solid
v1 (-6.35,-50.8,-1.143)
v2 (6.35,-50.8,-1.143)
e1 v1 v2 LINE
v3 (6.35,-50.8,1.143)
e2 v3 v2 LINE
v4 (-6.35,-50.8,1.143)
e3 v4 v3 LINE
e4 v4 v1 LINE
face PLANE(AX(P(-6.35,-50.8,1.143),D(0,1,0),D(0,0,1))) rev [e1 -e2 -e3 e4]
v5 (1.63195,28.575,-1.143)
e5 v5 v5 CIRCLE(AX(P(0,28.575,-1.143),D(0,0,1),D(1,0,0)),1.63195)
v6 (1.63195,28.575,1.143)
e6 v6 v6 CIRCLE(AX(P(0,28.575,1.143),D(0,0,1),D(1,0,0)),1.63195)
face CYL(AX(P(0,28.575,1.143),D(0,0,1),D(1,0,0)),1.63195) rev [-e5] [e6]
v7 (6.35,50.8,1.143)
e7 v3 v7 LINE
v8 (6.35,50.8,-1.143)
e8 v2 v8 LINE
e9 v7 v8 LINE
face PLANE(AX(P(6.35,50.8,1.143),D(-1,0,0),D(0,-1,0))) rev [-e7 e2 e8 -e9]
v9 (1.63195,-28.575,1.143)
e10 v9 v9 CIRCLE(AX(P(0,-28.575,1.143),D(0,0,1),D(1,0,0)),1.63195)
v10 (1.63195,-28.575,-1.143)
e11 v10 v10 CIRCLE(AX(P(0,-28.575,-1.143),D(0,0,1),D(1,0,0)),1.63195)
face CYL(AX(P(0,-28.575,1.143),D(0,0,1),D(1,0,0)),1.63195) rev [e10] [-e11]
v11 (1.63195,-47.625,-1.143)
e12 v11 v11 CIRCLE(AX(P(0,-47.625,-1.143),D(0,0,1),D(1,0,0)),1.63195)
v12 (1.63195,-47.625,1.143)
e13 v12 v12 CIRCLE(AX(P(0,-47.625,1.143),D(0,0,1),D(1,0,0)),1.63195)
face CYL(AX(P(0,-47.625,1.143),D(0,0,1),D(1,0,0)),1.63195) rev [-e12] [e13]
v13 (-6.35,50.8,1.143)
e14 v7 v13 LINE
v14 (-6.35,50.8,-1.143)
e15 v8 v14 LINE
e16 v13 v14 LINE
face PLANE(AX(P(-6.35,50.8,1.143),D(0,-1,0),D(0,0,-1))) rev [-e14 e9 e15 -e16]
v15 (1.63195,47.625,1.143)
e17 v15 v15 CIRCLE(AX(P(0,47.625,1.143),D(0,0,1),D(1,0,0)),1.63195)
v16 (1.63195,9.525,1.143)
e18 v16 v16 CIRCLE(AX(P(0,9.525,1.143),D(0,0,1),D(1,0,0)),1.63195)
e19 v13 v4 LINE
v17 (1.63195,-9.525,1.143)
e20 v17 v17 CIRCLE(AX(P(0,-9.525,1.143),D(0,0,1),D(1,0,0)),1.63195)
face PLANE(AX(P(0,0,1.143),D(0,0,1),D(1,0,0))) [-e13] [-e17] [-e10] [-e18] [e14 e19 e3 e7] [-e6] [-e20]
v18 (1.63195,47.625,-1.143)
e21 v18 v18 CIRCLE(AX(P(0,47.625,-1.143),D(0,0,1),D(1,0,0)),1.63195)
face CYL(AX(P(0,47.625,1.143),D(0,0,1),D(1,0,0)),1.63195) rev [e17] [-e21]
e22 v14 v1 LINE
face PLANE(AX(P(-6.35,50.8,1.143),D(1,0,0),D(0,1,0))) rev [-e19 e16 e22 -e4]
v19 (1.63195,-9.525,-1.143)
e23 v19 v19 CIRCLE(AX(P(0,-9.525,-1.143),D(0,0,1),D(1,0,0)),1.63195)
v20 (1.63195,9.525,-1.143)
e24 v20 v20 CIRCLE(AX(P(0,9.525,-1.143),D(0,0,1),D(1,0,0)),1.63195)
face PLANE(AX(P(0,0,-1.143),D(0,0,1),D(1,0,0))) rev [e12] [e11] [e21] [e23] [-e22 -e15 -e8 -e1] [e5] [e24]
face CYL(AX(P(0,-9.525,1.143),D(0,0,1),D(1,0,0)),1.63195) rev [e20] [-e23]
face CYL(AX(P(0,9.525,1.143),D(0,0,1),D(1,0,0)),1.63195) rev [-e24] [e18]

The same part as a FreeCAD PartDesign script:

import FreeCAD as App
import Part
import Sketcher
Q = App.Units.Quantity

doc = App.newDocument("Part")
body = doc.addObject("PartDesign::Body", "Body")

# Sketch on XY plane
sketch1 = body.newObject("Sketcher::SketchObject", "Sketch")
sketch1.AttachmentSupport = (doc.getObject("XY_Plane"), [""])
sketch1.MapMode = "FlatFace"
sketch1.addGeometry(Part.LineSegment(App.Vector(-6, 51, 0), App.Vector(-6, -51, 0)), False)
sketch1.addGeometry(Part.LineSegment(App.Vector(-6, -51, 0), App.Vector(6, -51, 0)), False)
sketch1.addGeometry(Part.LineSegment(App.Vector(6, -51, 0), App.Vector(6, 51, 0)), False)
sketch1.addGeometry(Part.LineSegment(App.Vector(6, 51, 0), App.Vector(-6, 51, 0)), False)
sketch1.addConstraint(Sketcher.Constraint("Coincident", 0, 2, 1, 1))
sketch1.addConstraint(Sketcher.Constraint("Coincident", 1, 2, 2, 1))
sketch1.addConstraint(Sketcher.Constraint("Coincident", 2, 2, 3, 1))
sketch1.addConstraint(Sketcher.Constraint("Coincident", 3, 2, 0, 1))
sketch1.addConstraint(Sketcher.Constraint("Vertical", 0))
sketch1.addConstraint(Sketcher.Constraint("Horizontal", 1))
sketch1.addConstraint(Sketcher.Constraint("Vertical", 2))
sketch1.addConstraint(Sketcher.Constraint("Horizontal", 3))
sketch1.addConstraint(Sketcher.Constraint("Symmetric", 0, 2, 2, 2, -1, 1))
sketch1.addConstraint(Sketcher.Constraint("DistanceY", 0, 2, 0, 1, Q("4 in")))
sketch1.addConstraint(Sketcher.Constraint("DistanceX", 1, 1, 1, 2, Q("0.5 in")))
pad1 = body.newObject("PartDesign::Pad", "Pad")
pad1.Profile = sketch1
pad1.Length = Q("0.09 in")
pad1.Midplane = True

# Sketch on XY plane
sketch2 = body.newObject("Sketcher::SketchObject", "Sketch001")
sketch2.AttachmentSupport = (doc.getObject("XY_Plane"), [""])
sketch2.MapMode = "FlatFace"
sketch2.AttachmentOffset = App.Placement(App.Vector(0, 0, 0.045 * 25.4), App.Rotation())
sketch2.addGeometry(Part.Circle(App.Vector(0, 47.6, 0), App.Vector(0, 0, 1), 1.6), False)
sketch2.addGeometry(Part.Circle(App.Vector(0, 28.6, 0), App.Vector(0, 0, 1), 1.6), False)
sketch2.addGeometry(Part.Circle(App.Vector(0, 9.5, 0), App.Vector(0, 0, 1), 1.6), False)
sketch2.addGeometry(Part.Circle(App.Vector(0, -9.5, 0), App.Vector(0, 0, 1), 1.6), False)
sketch2.addGeometry(Part.Circle(App.Vector(0, -28.6, 0), App.Vector(0, 0, 1), 1.6), False)
sketch2.addGeometry(Part.Circle(App.Vector(0, -47.6, 0), App.Vector(0, 0, 1), 1.6), False)
sketch2.addConstraint(Sketcher.Constraint("Equal", 0, 1))
sketch2.addConstraint(Sketcher.Constraint("Equal", 1, 2))
sketch2.addConstraint(Sketcher.Constraint("Equal", 2, 3))
sketch2.addConstraint(Sketcher.Constraint("Equal", 3, 4))
sketch2.addConstraint(Sketcher.Constraint("Equal", 4, 5))
sketch2.addConstraint(Sketcher.Constraint("Symmetric", 2, 3, 3, 3, -1, 1))
sketch2.addConstraint(Sketcher.Constraint("Symmetric", 1, 3, 4, 3, -1, 1))
sketch2.addConstraint(Sketcher.Constraint("Symmetric", 0, 3, 5, 3, -1, 1))
sketch2.addConstraint(Sketcher.Constraint("PointOnObject", 0, 3, -2))
sketch2.addConstraint(Sketcher.Constraint("PointOnObject", 1, 3, -2))
sketch2.addConstraint(Sketcher.Constraint("PointOnObject", 2, 3, -2))
sketch2.addConstraint(Sketcher.Constraint("DistanceY", 4, 3, 0, 3, Q("3 in")))
sketch2.addConstraint(Sketcher.Constraint("Diameter", 0, Q("0.1285 in")))
sketch2.addConstraint(Sketcher.Constraint("DistanceY", 2, 3, 0, 3, Q("1.5 in")))
sketch2.addConstraint(Sketcher.Constraint("DistanceY", 1, 3, 0, 3, Q("0.75 in")))
doc.recompute()
hole = body.newObject("PartDesign::Hole", "Hole")
hole.Profile = sketch2
hole.ThreadType = "None"
hole.Diameter = Q("0.1285 in")
hole.DepthType = "ThroughAll"

doc.recompute()
